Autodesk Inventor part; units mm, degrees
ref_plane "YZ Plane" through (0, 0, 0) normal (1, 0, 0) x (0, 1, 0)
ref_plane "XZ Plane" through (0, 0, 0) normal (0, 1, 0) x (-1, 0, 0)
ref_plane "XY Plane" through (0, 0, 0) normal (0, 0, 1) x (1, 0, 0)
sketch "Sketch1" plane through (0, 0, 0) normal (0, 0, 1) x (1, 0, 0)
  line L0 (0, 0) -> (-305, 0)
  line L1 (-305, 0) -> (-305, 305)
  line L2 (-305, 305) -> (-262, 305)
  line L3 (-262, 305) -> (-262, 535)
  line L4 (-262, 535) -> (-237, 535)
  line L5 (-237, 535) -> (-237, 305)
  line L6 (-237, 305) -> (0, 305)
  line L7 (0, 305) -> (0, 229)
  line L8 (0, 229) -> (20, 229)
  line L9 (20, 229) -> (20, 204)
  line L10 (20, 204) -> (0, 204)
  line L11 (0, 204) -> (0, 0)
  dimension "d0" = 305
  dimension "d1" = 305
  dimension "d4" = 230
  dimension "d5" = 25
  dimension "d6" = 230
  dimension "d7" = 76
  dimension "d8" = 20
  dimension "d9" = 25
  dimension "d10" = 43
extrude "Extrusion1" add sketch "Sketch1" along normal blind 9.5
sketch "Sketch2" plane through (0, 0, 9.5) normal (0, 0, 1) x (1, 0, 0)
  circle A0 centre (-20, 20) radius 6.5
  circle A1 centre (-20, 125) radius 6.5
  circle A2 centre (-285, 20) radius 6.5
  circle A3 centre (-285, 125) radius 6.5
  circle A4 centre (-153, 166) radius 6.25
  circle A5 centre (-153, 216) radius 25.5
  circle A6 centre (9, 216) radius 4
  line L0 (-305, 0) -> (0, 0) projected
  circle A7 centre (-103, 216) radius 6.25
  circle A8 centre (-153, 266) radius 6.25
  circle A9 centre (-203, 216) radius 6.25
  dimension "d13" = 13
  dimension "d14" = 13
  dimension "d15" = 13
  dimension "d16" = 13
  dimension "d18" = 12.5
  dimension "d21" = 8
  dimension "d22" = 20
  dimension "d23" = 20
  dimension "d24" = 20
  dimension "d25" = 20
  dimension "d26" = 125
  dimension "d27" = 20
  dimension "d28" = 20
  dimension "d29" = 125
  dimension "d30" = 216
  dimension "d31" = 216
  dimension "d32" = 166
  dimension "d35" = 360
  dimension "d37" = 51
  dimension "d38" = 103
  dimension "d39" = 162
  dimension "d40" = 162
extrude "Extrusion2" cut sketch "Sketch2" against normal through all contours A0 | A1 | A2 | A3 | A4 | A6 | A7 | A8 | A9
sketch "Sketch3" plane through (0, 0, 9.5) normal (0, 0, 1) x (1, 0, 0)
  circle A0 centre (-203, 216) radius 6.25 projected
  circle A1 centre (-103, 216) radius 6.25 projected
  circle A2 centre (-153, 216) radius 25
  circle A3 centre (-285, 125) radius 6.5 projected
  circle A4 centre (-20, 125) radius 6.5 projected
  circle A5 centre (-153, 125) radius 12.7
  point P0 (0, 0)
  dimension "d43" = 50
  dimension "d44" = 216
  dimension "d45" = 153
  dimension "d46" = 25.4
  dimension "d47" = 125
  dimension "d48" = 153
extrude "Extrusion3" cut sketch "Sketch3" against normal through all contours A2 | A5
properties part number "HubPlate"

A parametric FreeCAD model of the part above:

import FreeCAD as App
import Part
import Sketcher
from FreeCAD import Vector
Q = App.Units.Quantity


def add_polygon(sketch, points):
    """Adds a closed chain of lines whose ends are joined by coincident constraints."""
    first, n = sketch.GeometryCount, len(points)
    for a, b in zip(points, points[1:] + points[:1]):
        sketch.addGeometry(Part.LineSegment(App.Vector(*a, 0), App.Vector(*b, 0)), False)
    for i in range(n):
        sketch.addConstraint(Sketcher.Constraint("Coincident", first + i, 2, first + (i + 1) % n, 1))

doc = App.newDocument("Part")
body = doc.addObject("PartDesign::Body", "Body")

# Sketch on XY plane
sketch1 = doc.addObject("Sketcher::SketchObject", "Sketch")
body.addObject(sketch1)
sketch1.AttachmentSupport = (doc.XY_Plane, [""])
sketch1.MapMode = "FlatFace"
add_polygon(sketch1, [(-305, 0), (0, 0), (0, 204), (20, 204), (20, 229), (0, 229), (0, 305), (-237, 305), (-237, 535), (-262, 535), (-262, 305), (-305, 305)])  # lines 0-11
sketch1.addConstraint([
    Sketcher.Constraint("Horizontal", 0),
    Sketcher.Constraint("Vertical", 1),
    Sketcher.Constraint("Horizontal", 2),
    Sketcher.Constraint("Vertical", 3),
    Sketcher.Constraint("Horizontal", 4),
    Sketcher.Constraint("Vertical", 5),
    Sketcher.Constraint("Horizontal", 6),
    Sketcher.Constraint("Vertical", 7),
    Sketcher.Constraint("Horizontal", 8),
    Sketcher.Constraint("Vertical", 9),
    Sketcher.Constraint("Horizontal", 10),
    Sketcher.Constraint("Vertical", 11),
    Sketcher.Constraint("Coincident", 0, 2, -1, 1),
    Sketcher.Constraint("PointOnObject", 4, 2, -2),
    Sketcher.Constraint("Horizontal", 6, 2, 9, 2),
    Sketcher.Constraint("Equal", 8, 3),
    Sketcher.Constraint("Equal", 0, 11),
    Sketcher.Constraint("DistanceX", 0, 1, 0, 2, Q("305 mm")),
    Sketcher.Constraint("DistanceX", 2, 1, 2, 2, Q("20 mm")),
    Sketcher.Constraint("DistanceX", 8, 2, 8, 1, Q("25 mm")),
    Sketcher.Constraint("DistanceX", 10, 2, 10, 1, Q("43 mm")),
    Sketcher.Constraint("DistanceY", 5, 1, 5, 2, Q("76 mm")),
    Sketcher.Constraint("DistanceY", 7, 1, 7, 2, Q("230 mm")),
])
pad1 = doc.addObject("PartDesign::Pad", "Pad")
body.addObject(pad1)
pad1.Profile = sketch1
pad1.Length = 9.5

# Sketch on XY plane
sketch2 = doc.addObject("Sketcher::SketchObject", "Sketch001")
body.addObject(sketch2)
sketch2.AttachmentSupport = (doc.XY_Plane, [""])
sketch2.MapMode = "FlatFace"
sketch2.AttachmentOffset = App.Placement(Vector(0, 0, 9.5), App.Rotation())
sketch2.addGeometry([
    Part.Circle(Vector(-20, 20, 0), Vector(0, 0, 1), 6.5),  # 0
    Part.Circle(Vector(-20, 125, 0), Vector(0, 0, 1), 6.5),  # 1
    Part.Circle(Vector(-285, 20, 0), Vector(0, 0, 1), 6.5),  # 2
    Part.Circle(Vector(-285, 125, 0), Vector(0, 0, 1), 6.5),  # 3
    Part.Circle(Vector(-153, 166, 0), Vector(0, 0, 1), 6.2),  # 4
    Part.Circle(Vector(9, 216, 0), Vector(0, 0, 1), 4),  # 5
    Part.Circle(Vector(-103, 216, 0), Vector(0, 0, 1), 6.2),  # 6
    Part.Circle(Vector(-153, 266, 0), Vector(0, 0, 1), 6.2),  # 7
    Part.Circle(Vector(-203, 216, 0), Vector(0, 0, 1), 6.2),  # 8
], False)
sketch2.addConstraint([
    Sketcher.Constraint("Equal", 0, 1),
    Sketcher.Constraint("Equal", 1, 2),
    Sketcher.Constraint("Equal", 2, 3),
    Sketcher.Constraint("Equal", 4, 6),
    Sketcher.Constraint("Equal", 6, 7),
    Sketcher.Constraint("Equal", 7, 8),
    Sketcher.Constraint("Horizontal", 0, 3, 2, 3),
    Sketcher.Constraint("Horizontal", 1, 3, 3, 3),
    Sketcher.Constraint("Horizontal", 5, 3, 6, 3),
    Sketcher.Constraint("Horizontal", 6, 3, 8, 3),
    Sketcher.Constraint("Vertical", 0, 3, 1, 3),
    Sketcher.Constraint("Vertical", 2, 3, 3, 3),
    Sketcher.Constraint("Vertical", 4, 3, 7, 3),
    Sketcher.Constraint("Diameter", 0, Q("13 mm")),
    Sketcher.Constraint("Diameter", 5, Q("8 mm")),
    Sketcher.Constraint("Diameter", 4, Q("12.5 mm")),
    Sketcher.Constraint("DistanceX", 0, 3, -1, 1, Q("20 mm")),
    Sketcher.Constraint("DistanceY", -1, 1, 0, 3, Q("20 mm")),
    Sketcher.Constraint("DistanceY", -1, 1, 1, 3, Q("125 mm")),
    Sketcher.Constraint("DistanceY", -1, 1, 4, 3, Q("166 mm")),
    Sketcher.Constraint("DistanceY", -1, 1, 5, 3, Q("216 mm")),
    Sketcher.Constraint("DistanceX", 6, 3, -1, 1, Q("103 mm")),
    Sketcher.Constraint("DistanceX", 4, 3, 5, 3, Q("162 mm")),
    Sketcher.Constraint("DistanceX", 2, 3, -1, 1, Q("285 mm")),
    Sketcher.Constraint("DistanceX", 4, 3, -1, 1, Q("153 mm")),
    Sketcher.Constraint("DistanceY", -1, 1, 7, 3, Q("266 mm")),
    Sketcher.Constraint("DistanceX", 8, 3, -1, 1, Q("203 mm")),
])
pocket1 = doc.addObject("PartDesign::Pocket", "Pocket")
body.addObject(pocket1)
pocket1.Profile = sketch2
pocket1.Type = "ThroughAll"

# Sketch on XY plane
sketch3 = doc.addObject("Sketcher::SketchObject", "Sketch002")
body.addObject(sketch3)
sketch3.AttachmentSupport = (doc.XY_Plane, [""])
sketch3.MapMode = "FlatFace"
sketch3.AttachmentOffset = App.Placement(Vector(0, 0, 9.5), App.Rotation())
sketch3.addGeometry([
    Part.Circle(Vector(-153, 216, 0), Vector(0, 0, 1), 25),
    Part.Circle(Vector(-153, 125, 0), Vector(0, 0, 1), 13),
], False)
sketch3.addConstraint([
    Sketcher.Constraint("Vertical", 0, 3, 1, 3),
    Sketcher.Constraint("Diameter", 0, Q("50 mm")),
    Sketcher.Constraint("Diameter", 1, Q("25.4 mm")),
    Sketcher.Constraint("DistanceX", 0, 3, -1, 1, Q("153 mm")),
    Sketcher.Constraint("DistanceY", -1, 1, 0, 3, Q("216 mm")),
    Sketcher.Constraint("DistanceY", -1, 1, 1, 3, Q("125 mm")),
])
pocket2 = doc.addObject("PartDesign::Pocket", "Pocket001")
body.addObject(pocket2)
pocket2.Profile = sketch3
pocket2.Type = "ThroughAll"

doc.recompute()
